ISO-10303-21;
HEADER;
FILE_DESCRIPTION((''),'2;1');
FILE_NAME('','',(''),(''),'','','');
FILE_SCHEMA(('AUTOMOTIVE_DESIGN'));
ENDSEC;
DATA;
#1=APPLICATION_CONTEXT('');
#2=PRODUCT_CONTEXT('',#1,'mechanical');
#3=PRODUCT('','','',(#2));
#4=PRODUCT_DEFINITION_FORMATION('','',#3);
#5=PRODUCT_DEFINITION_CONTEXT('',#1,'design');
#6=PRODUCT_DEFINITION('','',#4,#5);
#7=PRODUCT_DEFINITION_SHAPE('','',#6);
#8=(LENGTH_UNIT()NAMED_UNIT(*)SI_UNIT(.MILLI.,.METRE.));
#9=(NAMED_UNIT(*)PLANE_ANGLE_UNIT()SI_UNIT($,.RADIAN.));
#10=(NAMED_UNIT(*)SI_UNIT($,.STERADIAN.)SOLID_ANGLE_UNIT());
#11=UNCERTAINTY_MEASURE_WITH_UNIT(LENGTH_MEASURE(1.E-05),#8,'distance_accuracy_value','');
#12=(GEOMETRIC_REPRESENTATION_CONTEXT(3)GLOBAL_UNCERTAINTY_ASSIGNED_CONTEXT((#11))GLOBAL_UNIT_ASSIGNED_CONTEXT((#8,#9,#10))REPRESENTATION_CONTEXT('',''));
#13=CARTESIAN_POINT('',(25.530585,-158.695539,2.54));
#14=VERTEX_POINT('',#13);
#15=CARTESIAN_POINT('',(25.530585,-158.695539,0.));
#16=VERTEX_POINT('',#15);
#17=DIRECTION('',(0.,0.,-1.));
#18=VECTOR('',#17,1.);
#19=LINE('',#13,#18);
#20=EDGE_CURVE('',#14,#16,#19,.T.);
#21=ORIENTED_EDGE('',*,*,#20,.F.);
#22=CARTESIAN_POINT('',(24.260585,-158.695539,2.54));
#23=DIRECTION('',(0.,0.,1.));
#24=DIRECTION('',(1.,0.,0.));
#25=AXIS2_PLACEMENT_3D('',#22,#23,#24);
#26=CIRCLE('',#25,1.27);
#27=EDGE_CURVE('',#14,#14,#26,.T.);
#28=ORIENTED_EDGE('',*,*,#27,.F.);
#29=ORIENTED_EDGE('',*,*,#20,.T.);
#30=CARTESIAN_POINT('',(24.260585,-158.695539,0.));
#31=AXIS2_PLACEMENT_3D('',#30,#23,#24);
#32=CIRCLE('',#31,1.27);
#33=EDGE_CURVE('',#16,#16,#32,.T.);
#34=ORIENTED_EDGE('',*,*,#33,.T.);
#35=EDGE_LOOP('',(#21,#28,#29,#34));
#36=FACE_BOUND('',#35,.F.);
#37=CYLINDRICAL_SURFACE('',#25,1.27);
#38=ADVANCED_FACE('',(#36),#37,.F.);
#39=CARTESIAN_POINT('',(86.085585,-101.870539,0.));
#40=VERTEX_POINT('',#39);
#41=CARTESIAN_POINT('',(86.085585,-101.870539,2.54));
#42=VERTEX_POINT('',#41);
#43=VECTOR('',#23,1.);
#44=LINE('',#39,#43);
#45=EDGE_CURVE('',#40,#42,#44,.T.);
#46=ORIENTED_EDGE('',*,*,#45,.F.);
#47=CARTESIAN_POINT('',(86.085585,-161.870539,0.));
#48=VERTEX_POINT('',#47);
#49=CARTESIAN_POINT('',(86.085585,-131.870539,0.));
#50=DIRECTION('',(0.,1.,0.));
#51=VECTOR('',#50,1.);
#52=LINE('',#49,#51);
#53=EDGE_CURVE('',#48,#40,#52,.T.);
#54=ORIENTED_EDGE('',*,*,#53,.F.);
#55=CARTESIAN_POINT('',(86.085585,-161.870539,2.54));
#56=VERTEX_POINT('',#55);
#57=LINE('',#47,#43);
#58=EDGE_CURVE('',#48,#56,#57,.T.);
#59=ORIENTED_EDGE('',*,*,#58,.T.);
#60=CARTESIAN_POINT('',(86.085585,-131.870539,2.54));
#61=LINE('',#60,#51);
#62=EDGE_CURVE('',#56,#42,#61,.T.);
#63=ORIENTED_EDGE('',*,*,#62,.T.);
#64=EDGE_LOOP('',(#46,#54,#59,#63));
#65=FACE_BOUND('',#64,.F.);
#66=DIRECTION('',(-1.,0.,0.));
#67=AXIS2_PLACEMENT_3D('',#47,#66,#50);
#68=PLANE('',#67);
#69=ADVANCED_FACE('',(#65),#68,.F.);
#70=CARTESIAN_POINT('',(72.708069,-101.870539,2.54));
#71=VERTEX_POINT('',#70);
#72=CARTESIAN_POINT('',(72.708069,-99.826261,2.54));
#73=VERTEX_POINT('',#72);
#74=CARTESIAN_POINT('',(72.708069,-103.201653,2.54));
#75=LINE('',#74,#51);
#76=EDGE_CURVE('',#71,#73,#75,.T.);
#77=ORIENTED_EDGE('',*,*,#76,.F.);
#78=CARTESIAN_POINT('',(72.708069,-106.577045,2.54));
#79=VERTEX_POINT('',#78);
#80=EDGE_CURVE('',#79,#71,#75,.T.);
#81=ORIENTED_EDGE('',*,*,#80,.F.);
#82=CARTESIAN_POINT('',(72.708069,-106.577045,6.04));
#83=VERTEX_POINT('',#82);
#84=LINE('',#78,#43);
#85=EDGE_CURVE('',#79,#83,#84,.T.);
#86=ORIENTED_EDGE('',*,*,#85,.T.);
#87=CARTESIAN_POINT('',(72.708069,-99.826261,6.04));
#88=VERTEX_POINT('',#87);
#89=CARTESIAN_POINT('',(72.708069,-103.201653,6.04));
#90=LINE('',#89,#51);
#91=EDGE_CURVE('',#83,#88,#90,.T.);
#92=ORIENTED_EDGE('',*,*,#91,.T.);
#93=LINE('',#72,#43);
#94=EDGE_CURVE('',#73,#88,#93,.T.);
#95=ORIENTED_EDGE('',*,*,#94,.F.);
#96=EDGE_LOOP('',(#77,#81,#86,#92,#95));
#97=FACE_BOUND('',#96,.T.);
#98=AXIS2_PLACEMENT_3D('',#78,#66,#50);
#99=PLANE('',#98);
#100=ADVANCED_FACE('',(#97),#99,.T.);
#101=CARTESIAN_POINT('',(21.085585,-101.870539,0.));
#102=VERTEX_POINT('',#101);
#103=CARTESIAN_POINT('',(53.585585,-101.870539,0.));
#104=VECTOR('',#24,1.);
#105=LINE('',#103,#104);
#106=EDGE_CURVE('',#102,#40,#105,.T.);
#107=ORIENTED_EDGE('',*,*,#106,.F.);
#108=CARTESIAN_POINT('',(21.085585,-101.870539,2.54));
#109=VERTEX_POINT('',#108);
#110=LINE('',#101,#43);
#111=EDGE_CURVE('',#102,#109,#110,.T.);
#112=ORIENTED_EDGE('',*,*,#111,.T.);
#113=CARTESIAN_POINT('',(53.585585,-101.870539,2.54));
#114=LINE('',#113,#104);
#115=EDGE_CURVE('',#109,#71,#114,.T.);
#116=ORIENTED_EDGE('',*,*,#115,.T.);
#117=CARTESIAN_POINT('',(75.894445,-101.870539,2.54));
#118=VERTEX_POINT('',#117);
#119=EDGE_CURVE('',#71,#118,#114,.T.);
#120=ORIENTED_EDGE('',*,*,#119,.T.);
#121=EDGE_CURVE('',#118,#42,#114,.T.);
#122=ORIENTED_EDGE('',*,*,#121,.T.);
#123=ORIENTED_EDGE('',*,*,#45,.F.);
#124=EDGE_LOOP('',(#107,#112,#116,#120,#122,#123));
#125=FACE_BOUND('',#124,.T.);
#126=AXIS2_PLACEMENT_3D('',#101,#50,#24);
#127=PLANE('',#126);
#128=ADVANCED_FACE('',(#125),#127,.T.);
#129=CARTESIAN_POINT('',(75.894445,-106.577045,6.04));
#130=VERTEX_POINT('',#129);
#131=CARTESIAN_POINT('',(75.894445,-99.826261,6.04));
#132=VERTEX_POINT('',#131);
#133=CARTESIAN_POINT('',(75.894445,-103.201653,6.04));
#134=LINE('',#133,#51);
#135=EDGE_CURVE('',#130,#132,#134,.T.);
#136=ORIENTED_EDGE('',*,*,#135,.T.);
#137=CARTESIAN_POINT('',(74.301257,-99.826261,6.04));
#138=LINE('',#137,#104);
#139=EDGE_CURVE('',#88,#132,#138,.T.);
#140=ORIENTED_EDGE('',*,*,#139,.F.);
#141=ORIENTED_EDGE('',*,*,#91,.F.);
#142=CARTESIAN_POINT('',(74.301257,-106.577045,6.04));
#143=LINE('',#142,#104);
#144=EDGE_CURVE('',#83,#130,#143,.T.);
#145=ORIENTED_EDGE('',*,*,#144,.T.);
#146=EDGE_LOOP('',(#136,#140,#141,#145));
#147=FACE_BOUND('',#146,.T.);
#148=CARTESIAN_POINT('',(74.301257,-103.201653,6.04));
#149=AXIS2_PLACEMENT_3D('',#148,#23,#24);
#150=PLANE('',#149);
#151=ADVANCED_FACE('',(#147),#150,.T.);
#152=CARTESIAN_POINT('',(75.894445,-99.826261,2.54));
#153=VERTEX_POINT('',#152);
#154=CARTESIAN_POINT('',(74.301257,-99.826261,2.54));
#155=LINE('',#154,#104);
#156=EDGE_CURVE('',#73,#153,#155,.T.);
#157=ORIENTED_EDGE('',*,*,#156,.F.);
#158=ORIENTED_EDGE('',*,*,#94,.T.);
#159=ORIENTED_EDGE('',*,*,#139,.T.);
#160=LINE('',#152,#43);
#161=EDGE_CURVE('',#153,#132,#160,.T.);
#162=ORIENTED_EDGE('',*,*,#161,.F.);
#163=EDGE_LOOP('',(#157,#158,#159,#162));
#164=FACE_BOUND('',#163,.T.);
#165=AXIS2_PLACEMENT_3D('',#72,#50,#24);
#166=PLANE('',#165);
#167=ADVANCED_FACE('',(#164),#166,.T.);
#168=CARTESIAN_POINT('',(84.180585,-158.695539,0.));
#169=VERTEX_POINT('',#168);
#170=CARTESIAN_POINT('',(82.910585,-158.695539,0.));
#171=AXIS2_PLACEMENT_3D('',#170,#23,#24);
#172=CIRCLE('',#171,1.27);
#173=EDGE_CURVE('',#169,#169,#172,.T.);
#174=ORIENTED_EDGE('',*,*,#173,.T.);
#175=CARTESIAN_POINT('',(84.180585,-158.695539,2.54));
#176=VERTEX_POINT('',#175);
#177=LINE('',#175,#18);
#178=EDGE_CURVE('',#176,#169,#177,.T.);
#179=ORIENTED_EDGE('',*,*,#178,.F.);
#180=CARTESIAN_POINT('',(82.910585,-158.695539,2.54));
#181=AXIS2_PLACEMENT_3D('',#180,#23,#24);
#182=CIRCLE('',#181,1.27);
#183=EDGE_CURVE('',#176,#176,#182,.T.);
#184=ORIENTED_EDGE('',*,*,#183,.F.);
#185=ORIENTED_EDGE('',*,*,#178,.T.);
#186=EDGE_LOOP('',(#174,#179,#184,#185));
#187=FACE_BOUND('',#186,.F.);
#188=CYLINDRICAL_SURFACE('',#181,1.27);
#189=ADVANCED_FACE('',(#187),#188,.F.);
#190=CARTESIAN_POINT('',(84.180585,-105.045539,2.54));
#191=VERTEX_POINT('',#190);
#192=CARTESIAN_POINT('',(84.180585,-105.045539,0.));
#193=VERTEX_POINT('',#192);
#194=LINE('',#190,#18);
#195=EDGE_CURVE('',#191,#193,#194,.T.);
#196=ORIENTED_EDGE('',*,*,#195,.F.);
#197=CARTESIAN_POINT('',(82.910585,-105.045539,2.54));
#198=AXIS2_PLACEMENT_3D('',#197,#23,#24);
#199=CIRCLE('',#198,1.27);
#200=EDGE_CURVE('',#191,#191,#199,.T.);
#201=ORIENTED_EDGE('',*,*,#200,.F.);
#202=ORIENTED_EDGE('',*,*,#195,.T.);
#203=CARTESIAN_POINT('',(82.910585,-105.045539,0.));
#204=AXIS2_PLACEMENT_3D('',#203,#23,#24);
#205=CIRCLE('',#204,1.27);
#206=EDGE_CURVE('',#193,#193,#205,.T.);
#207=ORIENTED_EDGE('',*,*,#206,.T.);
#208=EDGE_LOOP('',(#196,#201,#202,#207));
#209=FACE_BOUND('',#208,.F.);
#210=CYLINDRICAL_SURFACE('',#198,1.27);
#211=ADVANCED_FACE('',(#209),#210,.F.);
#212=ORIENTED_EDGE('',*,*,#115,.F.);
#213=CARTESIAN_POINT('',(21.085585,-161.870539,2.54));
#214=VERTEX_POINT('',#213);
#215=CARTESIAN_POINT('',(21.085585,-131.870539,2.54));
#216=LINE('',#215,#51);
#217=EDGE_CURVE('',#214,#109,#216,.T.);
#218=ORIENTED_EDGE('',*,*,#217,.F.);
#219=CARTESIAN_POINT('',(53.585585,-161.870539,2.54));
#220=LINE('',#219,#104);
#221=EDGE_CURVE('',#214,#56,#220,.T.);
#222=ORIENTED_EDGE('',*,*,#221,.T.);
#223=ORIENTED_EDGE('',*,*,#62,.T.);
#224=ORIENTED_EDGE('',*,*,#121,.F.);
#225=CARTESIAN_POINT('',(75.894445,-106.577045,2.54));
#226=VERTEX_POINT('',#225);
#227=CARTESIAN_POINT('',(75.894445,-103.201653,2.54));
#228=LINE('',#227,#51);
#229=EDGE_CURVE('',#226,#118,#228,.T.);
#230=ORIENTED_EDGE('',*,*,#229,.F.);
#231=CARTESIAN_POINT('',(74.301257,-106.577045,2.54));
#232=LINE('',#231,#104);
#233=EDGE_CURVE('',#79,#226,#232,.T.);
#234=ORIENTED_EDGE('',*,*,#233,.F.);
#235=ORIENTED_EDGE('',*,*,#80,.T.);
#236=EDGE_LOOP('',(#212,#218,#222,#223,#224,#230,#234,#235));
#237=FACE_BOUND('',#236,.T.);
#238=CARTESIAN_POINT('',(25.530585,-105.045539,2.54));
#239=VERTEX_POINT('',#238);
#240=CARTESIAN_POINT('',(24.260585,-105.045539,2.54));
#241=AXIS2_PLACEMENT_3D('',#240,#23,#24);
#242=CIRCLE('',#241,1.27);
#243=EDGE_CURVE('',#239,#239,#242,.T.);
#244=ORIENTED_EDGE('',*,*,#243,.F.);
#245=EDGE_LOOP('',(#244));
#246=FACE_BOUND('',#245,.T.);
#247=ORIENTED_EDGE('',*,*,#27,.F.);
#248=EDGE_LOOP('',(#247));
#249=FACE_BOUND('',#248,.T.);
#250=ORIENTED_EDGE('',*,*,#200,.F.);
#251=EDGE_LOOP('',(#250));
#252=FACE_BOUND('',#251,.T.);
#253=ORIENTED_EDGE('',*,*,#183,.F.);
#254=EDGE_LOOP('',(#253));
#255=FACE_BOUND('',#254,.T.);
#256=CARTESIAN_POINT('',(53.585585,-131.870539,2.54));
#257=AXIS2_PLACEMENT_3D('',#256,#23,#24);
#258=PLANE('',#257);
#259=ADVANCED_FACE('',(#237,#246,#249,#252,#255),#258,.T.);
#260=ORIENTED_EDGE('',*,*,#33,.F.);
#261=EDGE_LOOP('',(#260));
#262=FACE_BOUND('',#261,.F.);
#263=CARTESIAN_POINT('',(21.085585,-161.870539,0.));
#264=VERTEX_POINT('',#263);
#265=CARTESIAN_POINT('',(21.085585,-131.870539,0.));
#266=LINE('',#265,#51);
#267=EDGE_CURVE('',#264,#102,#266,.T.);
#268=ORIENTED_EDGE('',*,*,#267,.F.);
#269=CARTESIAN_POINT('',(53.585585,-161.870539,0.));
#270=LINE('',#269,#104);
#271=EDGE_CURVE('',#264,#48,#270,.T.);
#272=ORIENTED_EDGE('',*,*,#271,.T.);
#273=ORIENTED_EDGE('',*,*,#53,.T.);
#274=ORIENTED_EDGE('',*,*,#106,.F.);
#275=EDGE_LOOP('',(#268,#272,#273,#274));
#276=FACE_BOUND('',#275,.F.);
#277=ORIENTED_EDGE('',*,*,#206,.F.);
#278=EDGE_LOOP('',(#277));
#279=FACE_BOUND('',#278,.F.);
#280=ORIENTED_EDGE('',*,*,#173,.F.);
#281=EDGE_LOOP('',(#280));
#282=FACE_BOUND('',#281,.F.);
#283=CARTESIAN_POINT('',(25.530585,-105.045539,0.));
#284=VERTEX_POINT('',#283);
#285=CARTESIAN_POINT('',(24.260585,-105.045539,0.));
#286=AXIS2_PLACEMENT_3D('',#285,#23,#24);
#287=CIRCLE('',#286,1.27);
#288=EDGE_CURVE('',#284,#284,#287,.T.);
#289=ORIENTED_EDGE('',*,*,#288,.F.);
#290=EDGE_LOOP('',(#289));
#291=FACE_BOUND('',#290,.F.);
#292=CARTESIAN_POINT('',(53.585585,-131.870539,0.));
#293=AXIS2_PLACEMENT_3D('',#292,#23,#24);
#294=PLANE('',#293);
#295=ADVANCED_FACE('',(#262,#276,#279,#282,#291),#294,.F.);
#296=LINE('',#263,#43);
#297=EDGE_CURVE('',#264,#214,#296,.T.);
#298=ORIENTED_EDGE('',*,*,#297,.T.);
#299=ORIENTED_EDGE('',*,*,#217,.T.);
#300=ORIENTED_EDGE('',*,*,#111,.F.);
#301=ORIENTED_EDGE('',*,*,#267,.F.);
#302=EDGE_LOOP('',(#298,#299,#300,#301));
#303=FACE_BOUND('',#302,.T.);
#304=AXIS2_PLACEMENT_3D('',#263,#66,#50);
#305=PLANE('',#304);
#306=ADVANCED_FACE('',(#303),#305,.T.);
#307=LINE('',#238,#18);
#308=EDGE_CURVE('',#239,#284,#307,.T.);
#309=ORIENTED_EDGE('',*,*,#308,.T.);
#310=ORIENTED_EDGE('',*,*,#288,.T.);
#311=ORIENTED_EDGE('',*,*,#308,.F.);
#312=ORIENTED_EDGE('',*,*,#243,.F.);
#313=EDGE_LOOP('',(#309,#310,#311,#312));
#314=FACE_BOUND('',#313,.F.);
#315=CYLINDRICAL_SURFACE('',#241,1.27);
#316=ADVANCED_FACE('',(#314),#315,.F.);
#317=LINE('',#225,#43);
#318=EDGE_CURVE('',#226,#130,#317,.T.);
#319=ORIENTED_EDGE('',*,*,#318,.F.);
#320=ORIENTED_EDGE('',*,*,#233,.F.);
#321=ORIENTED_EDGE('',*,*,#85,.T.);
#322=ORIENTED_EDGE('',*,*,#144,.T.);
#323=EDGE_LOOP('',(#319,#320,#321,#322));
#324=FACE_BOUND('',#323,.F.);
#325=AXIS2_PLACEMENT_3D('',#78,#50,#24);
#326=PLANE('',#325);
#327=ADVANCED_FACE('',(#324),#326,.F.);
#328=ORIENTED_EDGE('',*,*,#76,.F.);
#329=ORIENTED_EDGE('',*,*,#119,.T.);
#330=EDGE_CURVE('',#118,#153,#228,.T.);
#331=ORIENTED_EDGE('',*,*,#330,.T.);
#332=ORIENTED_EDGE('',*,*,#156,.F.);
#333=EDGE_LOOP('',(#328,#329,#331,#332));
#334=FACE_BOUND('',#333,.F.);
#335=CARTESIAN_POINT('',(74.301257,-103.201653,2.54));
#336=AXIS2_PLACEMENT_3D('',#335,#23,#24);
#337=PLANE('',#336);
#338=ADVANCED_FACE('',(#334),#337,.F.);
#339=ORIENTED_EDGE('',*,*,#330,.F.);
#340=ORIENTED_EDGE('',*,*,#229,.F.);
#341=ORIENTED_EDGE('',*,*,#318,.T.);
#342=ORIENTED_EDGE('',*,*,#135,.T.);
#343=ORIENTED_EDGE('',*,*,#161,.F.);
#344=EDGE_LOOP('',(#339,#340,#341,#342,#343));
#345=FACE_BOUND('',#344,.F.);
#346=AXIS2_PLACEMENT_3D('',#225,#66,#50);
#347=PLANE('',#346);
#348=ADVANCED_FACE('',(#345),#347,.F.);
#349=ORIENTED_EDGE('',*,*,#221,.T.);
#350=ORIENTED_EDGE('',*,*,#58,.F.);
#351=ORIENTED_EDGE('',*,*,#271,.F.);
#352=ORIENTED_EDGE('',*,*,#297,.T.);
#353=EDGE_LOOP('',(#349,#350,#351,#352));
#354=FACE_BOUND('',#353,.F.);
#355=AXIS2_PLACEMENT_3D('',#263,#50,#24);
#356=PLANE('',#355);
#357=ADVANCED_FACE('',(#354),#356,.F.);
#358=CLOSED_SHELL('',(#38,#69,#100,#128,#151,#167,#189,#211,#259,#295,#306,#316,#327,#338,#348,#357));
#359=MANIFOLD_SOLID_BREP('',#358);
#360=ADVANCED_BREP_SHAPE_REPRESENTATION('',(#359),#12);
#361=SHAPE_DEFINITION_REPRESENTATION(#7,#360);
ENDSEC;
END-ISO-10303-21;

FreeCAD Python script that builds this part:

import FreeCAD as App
import Part
import Sketcher

V = App.Vector
Q = App.Units.Quantity


def add_polygon(sketch, points):
    """Adds a closed chain of lines whose ends are joined by coincident constraints."""
    first, n = sketch.GeometryCount, len(points)
    for a, b in zip(points, points[1:] + points[:1]):
        sketch.addGeometry(Part.LineSegment(App.Vector(*a, 0), App.Vector(*b, 0)), False)
    for i in range(n):
        sketch.addConstraint(Sketcher.Constraint("Coincident", first + i, 2, first + (i + 1) % n, 1))

doc = App.newDocument("Part")
body = doc.addObject("PartDesign::Body", "Body")

# Sketch on XY plane
sketch1 = body.newObject("Sketcher::SketchObject", "Sketch")
sketch1.AttachmentSupport = (doc.getObject("XY_Plane"), [""])
sketch1.MapMode = "FlatFace"
add_polygon(sketch1, [(21, -102), (21, -162), (86, -162), (86, -102)])  # lines 0-3
sketch1.addConstraint([
    Sketcher.Constraint("Vertical", 0),
    Sketcher.Constraint("Horizontal", 1),
    Sketcher.Constraint("Vertical", 2),
    Sketcher.Constraint("Horizontal", 3),
    Sketcher.Constraint("DistanceX", 1, 1, 1, 2, Q("65 mm")),
    Sketcher.Constraint("DistanceY", 0, 2, 0, 1, Q("60 mm")),
    Sketcher.Constraint("DistanceY", 0, 2, -1, 1, Q("161.870539 mm")),
    Sketcher.Constraint("DistanceX", -1, 1, 0, 2, Q("21.085585 mm")),
])
pad1 = body.newObject("PartDesign::Pad", "Pad")
pad1.Profile = sketch1
pad1.Length = 2.54

# Sketch on XY plane
sketch2 = body.newObject("Sketcher::SketchObject", "Sketch001")
sketch2.AttachmentSupport = (doc.getObject("XY_Plane"), [""])
sketch2.MapMode = "FlatFace"
sketch2.AttachmentOffset = App.Placement(V(0, 0, 2.54), App.Rotation())
sketch2.addGeometry([
    Part.Circle(V(24.3, -105, 0), V(0, 0, 1), 1.3),
    Part.Circle(V(82.9, -105, 0), V(0, 0, 1), 1.3),
    Part.Circle(V(82.9, -158.7, 0), V(0, 0, 1), 1.3),
    Part.Circle(V(24.3, -158.7, 0), V(0, 0, 1), 1.3),
], False)
sketch2.addConstraint([
    Sketcher.Constraint("Equal", 0, 1),
    Sketcher.Constraint("Equal", 1, 2),
    Sketcher.Constraint("Equal", 2, 3),
    Sketcher.Constraint("Horizontal", 0, 3, 1, 3),
    Sketcher.Constraint("Horizontal", 2, 3, 3, 3),
    Sketcher.Constraint("Vertical", 1, 3, 2, 3),
    Sketcher.Constraint("Vertical", 0, 3, 3, 3),
    Sketcher.Constraint("Diameter", 0, Q("2.54 mm")),
    Sketcher.Constraint("DistanceX", 0, 3, 1, 3, Q("58.65 mm")),
    Sketcher.Constraint("DistanceY", 2, 3, 1, 3, Q("53.65 mm")),
    Sketcher.Constraint("DistanceY", 0, 3, -1, 1, Q("105.045539 mm")),
    Sketcher.Constraint("DistanceX", -1, 1, 0, 3, Q("24.260585 mm")),
])
pocket1 = body.newObject("PartDesign::Pocket", "Pocket")
pocket1.Profile = sketch2
pocket1.Type = "ThroughAll"

# Sketch on XY plane
sketch3 = body.newObject("Sketcher::SketchObject", "Sketch002")
sketch3.AttachmentSupport = (doc.getObject("XY_Plane"), [""])
sketch3.MapMode = "FlatFace"
sketch3.AttachmentOffset = App.Placement(V(0, 0, 2.54), App.Rotation())
add_polygon(sketch3, [(72.7, -99.8), (72.7, -106.6), (75.9, -106.6), (75.9, -99.8)])  # lines 0-3
sketch3.addConstraint([
    Sketcher.Constraint("Vertical", 0),
    Sketcher.Constraint("Horizontal", 1),
    Sketcher.Constraint("Vertical", 2),
    Sketcher.Constraint("Horizontal", 3),
    Sketcher.Constraint("DistanceX", 1, 1, 1, 2, Q("3.186375 mm")),
    Sketcher.Constraint("DistanceY", 0, 2, 0, 1, Q("6.750785 mm")),
    Sketcher.Constraint("DistanceX", -1, 1, 0, 2, Q("72.708069 mm")),
    Sketcher.Constraint("DistanceY", 2, 2, -1, 1, Q("99.826261 mm")),
])
pad2 = body.newObject("PartDesign::Pad", "Pad001")
pad2.Profile = sketch3
pad2.Length = 3.5

doc.recompute()
